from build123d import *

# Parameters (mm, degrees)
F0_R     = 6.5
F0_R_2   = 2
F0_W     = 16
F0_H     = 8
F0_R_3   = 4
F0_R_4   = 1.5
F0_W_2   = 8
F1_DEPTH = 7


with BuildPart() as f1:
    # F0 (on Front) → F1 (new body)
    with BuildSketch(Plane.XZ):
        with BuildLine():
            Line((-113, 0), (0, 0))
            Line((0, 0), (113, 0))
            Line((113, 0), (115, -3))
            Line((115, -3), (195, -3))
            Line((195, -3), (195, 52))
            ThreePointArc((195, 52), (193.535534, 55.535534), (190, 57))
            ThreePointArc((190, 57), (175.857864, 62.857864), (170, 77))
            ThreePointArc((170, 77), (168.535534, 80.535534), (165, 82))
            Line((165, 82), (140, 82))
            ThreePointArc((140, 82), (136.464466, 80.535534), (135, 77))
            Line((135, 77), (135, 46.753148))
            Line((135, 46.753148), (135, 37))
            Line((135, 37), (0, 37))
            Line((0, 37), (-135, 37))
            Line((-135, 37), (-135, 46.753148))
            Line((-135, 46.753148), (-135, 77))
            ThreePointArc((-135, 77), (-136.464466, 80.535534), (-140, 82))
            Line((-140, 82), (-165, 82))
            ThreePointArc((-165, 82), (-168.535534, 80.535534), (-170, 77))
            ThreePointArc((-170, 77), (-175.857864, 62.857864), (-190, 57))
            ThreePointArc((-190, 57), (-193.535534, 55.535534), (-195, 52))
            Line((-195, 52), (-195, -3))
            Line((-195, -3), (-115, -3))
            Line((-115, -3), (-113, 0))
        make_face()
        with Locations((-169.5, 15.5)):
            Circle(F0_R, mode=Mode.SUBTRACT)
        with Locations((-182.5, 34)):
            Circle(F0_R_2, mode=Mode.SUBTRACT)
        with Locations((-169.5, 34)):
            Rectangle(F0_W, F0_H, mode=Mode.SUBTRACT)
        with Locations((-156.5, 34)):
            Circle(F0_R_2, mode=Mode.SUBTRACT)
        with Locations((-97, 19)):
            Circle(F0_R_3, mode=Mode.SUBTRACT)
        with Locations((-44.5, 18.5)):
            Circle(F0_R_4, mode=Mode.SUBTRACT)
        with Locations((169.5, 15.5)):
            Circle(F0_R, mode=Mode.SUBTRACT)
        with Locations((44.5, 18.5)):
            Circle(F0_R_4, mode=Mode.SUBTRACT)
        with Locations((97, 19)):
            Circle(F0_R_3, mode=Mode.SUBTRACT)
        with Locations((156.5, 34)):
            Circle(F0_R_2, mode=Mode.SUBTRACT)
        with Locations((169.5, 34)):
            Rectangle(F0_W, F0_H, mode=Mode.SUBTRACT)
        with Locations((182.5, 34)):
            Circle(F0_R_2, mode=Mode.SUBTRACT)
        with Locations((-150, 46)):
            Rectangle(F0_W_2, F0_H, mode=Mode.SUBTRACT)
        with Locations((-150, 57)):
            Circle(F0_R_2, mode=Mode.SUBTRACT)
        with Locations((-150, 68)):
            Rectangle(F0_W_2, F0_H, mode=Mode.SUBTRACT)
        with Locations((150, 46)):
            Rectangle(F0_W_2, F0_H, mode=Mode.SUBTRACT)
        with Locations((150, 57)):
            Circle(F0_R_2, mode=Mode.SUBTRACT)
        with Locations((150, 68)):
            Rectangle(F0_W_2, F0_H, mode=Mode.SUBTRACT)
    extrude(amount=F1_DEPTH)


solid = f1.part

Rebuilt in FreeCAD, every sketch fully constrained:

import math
import FreeCAD as App
import Part
import Sketcher
from FreeCAD import Vector

doc = App.newDocument("Part")
params = doc.addObject("Spreadsheet::Sheet", "Params")
for row, (alias, value) in enumerate([
    ("sketch1_diameter", "13 mm"),
    ("sketch1_diameter2", "8 mm"),
    ("sketch1_diameter3", "3 mm"),
    ("sketch1_diameter4", "4 mm"),
    ("sketch1_radius", "5 mm"),
    ("pad1_length", "7 mm"),
], start=1):
    params.set(f"A{row}", alias)
    params.set(f"B{row}", "=" + value)
    params.setAlias(f"B{row}", alias)

body = doc.addObject("PartDesign::Body", "Body")

# Sketch on XZ plane
sketch1 = body.newObject("Sketcher::SketchObject", "Sketch")
sketch1.AttachmentSupport = (doc.getObject("XZ_Plane"), [""])
sketch1.MapMode = "FlatFace"
sketch1.addGeometry([
    Part.LineSegment(Vector(-113, 0, 0), Vector(113, 0, 0)),  # 0
    Part.LineSegment(Vector(113, 0, 0), Vector(115, -3, 0)),  # 1
    Part.LineSegment(Vector(115, -3, 0), Vector(195, -3, 0)),  # 2
    Part.LineSegment(Vector(195, -3, 0), Vector(195, 52, 0)),  # 3
    Part.ArcOfCircle(Part.Circle(Vector(190, 52, 0), Vector(0, 0, 1), 5), math.radians(0), math.radians(90)),  # 4
    Part.ArcOfCircle(Part.Circle(Vector(190, 77, 0), Vector(0, 0, 1), 20), math.radians(180), math.radians(270)),  # 5
    Part.ArcOfCircle(Part.Circle(Vector(165, 77, 0), Vector(0, 0, 1), 5), math.radians(0), math.radians(90)),  # 6
    Part.LineSegment(Vector(165, 82, 0), Vector(140, 82, 0)),  # 7
    Part.ArcOfCircle(Part.Circle(Vector(140, 77, 0), Vector(0, 0, 1), 5), math.radians(90), math.radians(180)),  # 8
    Part.LineSegment(Vector(135, 77, 0), Vector(135, 37, 0)),  # 9
    Part.LineSegment(Vector(135, 37, 0), Vector(-135, 37, 0)),  # 10
    Part.LineSegment(Vector(-135, 37, 0), Vector(-135, 77, 0)),  # 11
    Part.ArcOfCircle(Part.Circle(Vector(-140, 77, 0), Vector(0, 0, 1), 5), math.radians(0), math.radians(90)),  # 12
    Part.LineSegment(Vector(-140, 82, 0), Vector(-165, 82, 0)),  # 13
    Part.ArcOfCircle(Part.Circle(Vector(-165, 77, 0), Vector(0, 0, 1), 5), math.radians(90), math.radians(180)),  # 14
    Part.ArcOfCircle(Part.Circle(Vector(-190, 77, 0), Vector(0, 0, 1), 20), math.radians(-90), math.radians(0)),  # 15
    Part.ArcOfCircle(Part.Circle(Vector(-190, 52, 0), Vector(0, 0, 1), 5), math.radians(90), math.radians(180)),  # 16
    Part.LineSegment(Vector(-195, 52, 0), Vector(-195, -3, 0)),  # 17
    Part.LineSegment(Vector(-195, -3, 0), Vector(-115, -3, 0)),  # 18
    Part.LineSegment(Vector(-115, -3, 0), Vector(-113, 0, 0)),  # 19
    Part.Circle(Vector(-169.5, 15.5, 0), Vector(0, 0, 1), 6.5),  # 20
    Part.Circle(Vector(-97, 19, 0), Vector(0, 0, 1), 4),  # 21
    Part.Circle(Vector(-44.5, 18.5, 0), Vector(0, 0, 1), 1.5),  # 22
    Part.Circle(Vector(-182.5, 34, 0), Vector(0, 0, 1), 2),  # 23
    Part.LineSegment(Vector(-161.5, 30, 0), Vector(-177.5, 30, 0)),  # 24
    Part.LineSegment(Vector(-177.5, 30, 0), Vector(-177.5, 38, 0)),  # 25
    Part.LineSegment(Vector(-177.5, 38, 0), Vector(-161.5, 38, 0)),  # 26
    Part.LineSegment(Vector(-161.5, 38, 0), Vector(-161.5, 30, 0)),  # 27
    Part.Circle(Vector(-156.5, 34, 0), Vector(0, 0, 1), 2),  # 28
    Part.Circle(Vector(44.5, 18.5, 0), Vector(0, 0, 1), 1.5),  # 29
    Part.Circle(Vector(169.5, 15.5, 0), Vector(0, 0, 1), 6.5),  # 30
    Part.Circle(Vector(97, 19, 0), Vector(0, 0, 1), 4),  # 31
    Part.Circle(Vector(156.5, 34, 0), Vector(0, 0, 1), 2),  # 32
    Part.LineSegment(Vector(177.5, 30, 0), Vector(161.5, 30, 0)),  # 33
    Part.LineSegment(Vector(161.5, 30, 0), Vector(161.5, 38, 0)),  # 34
    Part.LineSegment(Vector(161.5, 38, 0), Vector(177.5, 38, 0)),  # 35
    Part.LineSegment(Vector(177.5, 38, 0), Vector(177.5, 30, 0)),  # 36
    Part.Circle(Vector(182.5, 34, 0), Vector(0, 0, 1), 2),  # 37
    Part.LineSegment(Vector(-146, 42, 0), Vector(-154, 42, 0)),  # 38
    Part.LineSegment(Vector(-154, 42, 0), Vector(-154, 50, 0)),  # 39
    Part.LineSegment(Vector(-154, 50, 0), Vector(-146, 50, 0)),  # 40
    Part.LineSegment(Vector(-146, 50, 0), Vector(-146, 42, 0)),  # 41
    Part.Circle(Vector(-150, 57, 0), Vector(0, 0, 1), 2),  # 42
    Part.LineSegment(Vector(-146, 64, 0), Vector(-154, 64, 0)),  # 43
    Part.LineSegment(Vector(-154, 64, 0), Vector(-154, 72, 0)),  # 44
    Part.LineSegment(Vector(-154, 72, 0), Vector(-146, 72, 0)),  # 45
    Part.LineSegment(Vector(-146, 72, 0), Vector(-146, 64, 0)),  # 46
    Part.LineSegment(Vector(154, 42, 0), Vector(146, 42, 0)),  # 47
    Part.LineSegment(Vector(146, 42, 0), Vector(146, 50, 0)),  # 48
    Part.LineSegment(Vector(146, 50, 0), Vector(154, 50, 0)),  # 49
    Part.LineSegment(Vector(154, 50, 0), Vector(154, 42, 0)),  # 50
    Part.Circle(Vector(150, 57, 0), Vector(0, 0, 1), 2),  # 51
    Part.LineSegment(Vector(154, 64, 0), Vector(146, 64, 0)),  # 52
    Part.LineSegment(Vector(146, 64, 0), Vector(146, 72, 0)),  # 53
    Part.LineSegment(Vector(146, 72, 0), Vector(154, 72, 0)),  # 54
    Part.LineSegment(Vector(154, 72, 0), Vector(154, 64, 0)),  # 55
], False)
sketch1.addConstraint([
    Sketcher.Constraint("Coincident", 0, 2, 1, 1),
    Sketcher.Constraint("Coincident", 1, 2, 2, 1),
    Sketcher.Constraint("Coincident", 2, 2, 3, 1),
    Sketcher.Constraint("Tangent", 3, 2, 4, 1),
    Sketcher.Constraint("Tangent", 4, 2, 5, 2),
    Sketcher.Constraint("Tangent", 5, 1, 6, 1),
    Sketcher.Constraint("Tangent", 6, 2, 7, 1),
    Sketcher.Constraint("Tangent", 7, 2, 8, 1),
    Sketcher.Constraint("Tangent", 8, 2, 9, 1),
    Sketcher.Constraint("Coincident", 9, 2, 10, 1),
    Sketcher.Constraint("Coincident", 10, 2, 11, 1),
    Sketcher.Constraint("Tangent", 11, 2, 12, 1),
    Sketcher.Constraint("Tangent", 12, 2, 13, 1),
    Sketcher.Constraint("Tangent", 13, 2, 14, 1),
    Sketcher.Constraint("Tangent", 14, 2, 15, 2),
    Sketcher.Constraint("Tangent", 15, 1, 16, 1),
    Sketcher.Constraint("Tangent", 16, 2, 17, 1),
    Sketcher.Constraint("Coincident", 17, 2, 18, 1),
    Sketcher.Constraint("Coincident", 18, 2, 19, 1),
    Sketcher.Constraint("Coincident", 19, 2, 0, 1),
    Sketcher.Constraint("Coincident", 24, 2, 25, 1),
    Sketcher.Constraint("Coincident", 25, 2, 26, 1),
    Sketcher.Constraint("Coincident", 26, 2, 27, 1),
    Sketcher.Constraint("Coincident", 27, 2, 24, 1),
    Sketcher.Constraint("Coincident", 33, 2, 34, 1),
    Sketcher.Constraint("Coincident", 34, 2, 35, 1),
    Sketcher.Constraint("Coincident", 35, 2, 36, 1),
    Sketcher.Constraint("Coincident", 36, 2, 33, 1),
    Sketcher.Constraint("Coincident", 38, 2, 39, 1),
    Sketcher.Constraint("Coincident", 39, 2, 40, 1),
    Sketcher.Constraint("Coincident", 40, 2, 41, 1),
    Sketcher.Constraint("Coincident", 41, 2, 38, 1),
    Sketcher.Constraint("Coincident", 43, 2, 44, 1),
    Sketcher.Constraint("Coincident", 44, 2, 45, 1),
    Sketcher.Constraint("Coincident", 45, 2, 46, 1),
    Sketcher.Constraint("Coincident", 46, 2, 43, 1),
    Sketcher.Constraint("Coincident", 47, 2, 48, 1),
    Sketcher.Constraint("Coincident", 48, 2, 49, 1),
    Sketcher.Constraint("Coincident", 49, 2, 50, 1),
    Sketcher.Constraint("Coincident", 50, 2, 47, 1),
    Sketcher.Constraint("Coincident", 52, 2, 53, 1),
    Sketcher.Constraint("Coincident", 53, 2, 54, 1),
    Sketcher.Constraint("Coincident", 54, 2, 55, 1),
    Sketcher.Constraint("Coincident", 55, 2, 52, 1),
    Sketcher.Constraint("Horizontal", 0),
    Sketcher.Constraint("Horizontal", 2),
    Sketcher.Constraint("Vertical", 3),
    Sketcher.Constraint("Horizontal", 7),
    Sketcher.Constraint("Vertical", 9),
    Sketcher.Constraint("Horizontal", 10),
    Sketcher.Constraint("Vertical", 11),
    Sketcher.Constraint("Horizontal", 13),
    Sketcher.Constraint("Vertical", 17),
    Sketcher.Constraint("Horizontal", 18),
    Sketcher.Constraint("Horizontal", 24),
    Sketcher.Constraint("Vertical", 25),
    Sketcher.Constraint("Horizontal", 26),
    Sketcher.Constraint("Vertical", 27),
    Sketcher.Constraint("Horizontal", 33),
    Sketcher.Constraint("Vertical", 34),
    Sketcher.Constraint("Horizontal", 35),
    Sketcher.Constraint("Vertical", 36),
    Sketcher.Constraint("Horizontal", 38),
    Sketcher.Constraint("Vertical", 39),
    Sketcher.Constraint("Horizontal", 40),
    Sketcher.Constraint("Vertical", 41),
    Sketcher.Constraint("Horizontal", 43),
    Sketcher.Constraint("Vertical", 44),
    Sketcher.Constraint("Horizontal", 45),
    Sketcher.Constraint("Vertical", 46),
    Sketcher.Constraint("Horizontal", 47),
    Sketcher.Constraint("Vertical", 48),
    Sketcher.Constraint("Horizontal", 49),
    Sketcher.Constraint("Vertical", 50),
    Sketcher.Constraint("Horizontal", 52),
    Sketcher.Constraint("Vertical", 53),
    Sketcher.Constraint("Horizontal", 54),
    Sketcher.Constraint("Vertical", 55),
    Sketcher.Constraint("Equal", 4, 6),
    Sketcher.Constraint("Equal", 6, 8),
    Sketcher.Constraint("Equal", 8, 12),
    Sketcher.Constraint("Equal", 12, 14),
    Sketcher.Constraint("Equal", 5, 15),
    Sketcher.Constraint("Equal", 14, 16),
    Sketcher.Constraint("Equal", 23, 28),
    Sketcher.Constraint("Equal", 22, 29),
    Sketcher.Constraint("Equal", 20, 30),
    Sketcher.Constraint("Equal", 21, 31),
    Sketcher.Constraint("Equal", 28, 32),
    Sketcher.Constraint("Equal", 32, 37),
    Sketcher.Constraint("Equal", 37, 42),
    Sketcher.Constraint("Equal", 42, 51),
    Sketcher.Constraint("Symmetric", 0, 2, 19, 2, -1, 1),
    Sketcher.Constraint("Symmetric", 8, 3, 12, 3, -2),
    Sketcher.Constraint("Symmetric", 5, 3, 15, 3, -2),
    Sketcher.Constraint("Symmetric", 22, 3, 29, 3, -2),
    Sketcher.Constraint("Symmetric", 20, 3, 30, 3, -2),
    Sketcher.Constraint("Symmetric", 21, 3, 31, 3, -2),
    Sketcher.Constraint("Symmetric", 28, 3, 32, 3, -2),
    Sketcher.Constraint("Symmetric", 23, 3, 37, 3, -2),
    Sketcher.Constraint("Symmetric", 42, 3, 51, 3, -2),
    Sketcher.Constraint("Symmetric", 2, 2, 17, 2, -2),
    Sketcher.Constraint("Symmetric", 27, 2, 33, 2, -2),
    Sketcher.Constraint("Symmetric", 25, 2, 35, 2, -2),
    Sketcher.Constraint("Symmetric", 41, 2, 47, 2, -2),
    Sketcher.Constraint("Symmetric", 39, 2, 49, 2, -2),
    Sketcher.Constraint("Symmetric", 46, 2, 52, 2, -2),
    Sketcher.Constraint("Symmetric", 44, 2, 54, 2, -2),
    Sketcher.Constraint("Horizontal", 5, 3, 6, 3),
    Sketcher.Constraint("Horizontal", 23, 3, 28, 3),
    Sketcher.Constraint("Horizontal", 51, 3, 4, 2),
    Sketcher.Constraint("Vertical", 4, 3, 5, 3),
    Sketcher.Constraint("Vertical", 39, 2, 43, 2),
    Sketcher.Constraint("Vertical", 41, 2, 45, 2),
    Sketcher.Constraint("Equal", 2, 18),
    Sketcher.Constraint("Equal", 54, 25),
    Sketcher.Constraint("Equal", 36, 39),
    Sketcher.Constraint("Equal", 41, 44),
    Sketcher.Constraint("Diameter", 20, 13.0),
    Sketcher.Constraint("Diameter", 21, 8.0),
    Sketcher.Constraint("Diameter", 22, 3.0),
    Sketcher.Constraint("Diameter", 23, 4.0),
    Sketcher.Constraint("Radius", 4, 5.0),
    Sketcher.Constraint("Radius", 5, 19.999999),
    Sketcher.Constraint("DistanceX", 0, 1, 0, 2, 226.0),
    Sketcher.Constraint("DistanceX", 2, 1, 2, 2, 80.0),
    Sketcher.Constraint("DistanceX", 7, 2, 7, 1, 25.0),
    Sketcher.Constraint("DistanceX", 10, 2, 10, 1, 270.0),
    Sketcher.Constraint("DistanceX", 24, 2, 24, 1, 16.0),
    Sketcher.Constraint("DistanceX", 38, 2, 38, 1, 8.0),
    Sketcher.Constraint("DistanceY", 3, 1, 3, 2, 55.0),
    Sketcher.Constraint("DistanceY", 9, 2, 9, 1, 40.0),
    Sketcher.Constraint("DistanceY", -1, 1, 4, 3, 52.0),
    Sketcher.Constraint("DistanceX", 21, 3, -1, 1, 97.0),
    Sketcher.Constraint("DistanceY", -1, 1, 21, 3, 19.0),
    Sketcher.Constraint("DistanceY", -1, 1, 23, 3, 34.0),
    Sketcher.Constraint("DistanceX", 42, 3, -1, 1, 150.0),
    Sketcher.Constraint("DistanceY", -1, 1, 24, 2, 30.0),
    Sketcher.Constraint("DistanceX", 38, 2, -1, 1, 154.0),
    Sketcher.Constraint("DistanceY", -1, 1, 38, 2, 42.0),
    Sketcher.Constraint("DistanceY", -1, 1, 43, 2, 64.0),
    Sketcher.Constraint("DistanceX", 20, 3, -1, 1, 169.5),
    Sketcher.Constraint("DistanceY", -1, 1, 20, 3, 15.5),
    Sketcher.Constraint("DistanceX", 22, 3, -1, 1, 44.5),
    Sketcher.Constraint("DistanceY", -1, 1, 22, 3, 18.5),
    Sketcher.Constraint("DistanceX", 23, 3, -1, 1, 182.5),
    Sketcher.Constraint("DistanceX", 28, 3, -1, 1, 156.5),
    Sketcher.Constraint("DistanceX", 24, 2, -1, 1, 177.5),
])
sketch1.setExpression("Constraints[118]", "Params.sketch1_diameter")
sketch1.setExpression("Constraints[119]", "Params.sketch1_diameter2")
sketch1.setExpression("Constraints[120]", "Params.sketch1_diameter3")
sketch1.setExpression("Constraints[121]", "Params.sketch1_diameter4")
sketch1.setExpression("Constraints[122]", "Params.sketch1_radius")
pad1 = body.newObject("PartDesign::Pad", "Pad")
pad1.Profile = sketch1
pad1.setExpression("Length", "Params.pad1_length")

doc.recompute()
